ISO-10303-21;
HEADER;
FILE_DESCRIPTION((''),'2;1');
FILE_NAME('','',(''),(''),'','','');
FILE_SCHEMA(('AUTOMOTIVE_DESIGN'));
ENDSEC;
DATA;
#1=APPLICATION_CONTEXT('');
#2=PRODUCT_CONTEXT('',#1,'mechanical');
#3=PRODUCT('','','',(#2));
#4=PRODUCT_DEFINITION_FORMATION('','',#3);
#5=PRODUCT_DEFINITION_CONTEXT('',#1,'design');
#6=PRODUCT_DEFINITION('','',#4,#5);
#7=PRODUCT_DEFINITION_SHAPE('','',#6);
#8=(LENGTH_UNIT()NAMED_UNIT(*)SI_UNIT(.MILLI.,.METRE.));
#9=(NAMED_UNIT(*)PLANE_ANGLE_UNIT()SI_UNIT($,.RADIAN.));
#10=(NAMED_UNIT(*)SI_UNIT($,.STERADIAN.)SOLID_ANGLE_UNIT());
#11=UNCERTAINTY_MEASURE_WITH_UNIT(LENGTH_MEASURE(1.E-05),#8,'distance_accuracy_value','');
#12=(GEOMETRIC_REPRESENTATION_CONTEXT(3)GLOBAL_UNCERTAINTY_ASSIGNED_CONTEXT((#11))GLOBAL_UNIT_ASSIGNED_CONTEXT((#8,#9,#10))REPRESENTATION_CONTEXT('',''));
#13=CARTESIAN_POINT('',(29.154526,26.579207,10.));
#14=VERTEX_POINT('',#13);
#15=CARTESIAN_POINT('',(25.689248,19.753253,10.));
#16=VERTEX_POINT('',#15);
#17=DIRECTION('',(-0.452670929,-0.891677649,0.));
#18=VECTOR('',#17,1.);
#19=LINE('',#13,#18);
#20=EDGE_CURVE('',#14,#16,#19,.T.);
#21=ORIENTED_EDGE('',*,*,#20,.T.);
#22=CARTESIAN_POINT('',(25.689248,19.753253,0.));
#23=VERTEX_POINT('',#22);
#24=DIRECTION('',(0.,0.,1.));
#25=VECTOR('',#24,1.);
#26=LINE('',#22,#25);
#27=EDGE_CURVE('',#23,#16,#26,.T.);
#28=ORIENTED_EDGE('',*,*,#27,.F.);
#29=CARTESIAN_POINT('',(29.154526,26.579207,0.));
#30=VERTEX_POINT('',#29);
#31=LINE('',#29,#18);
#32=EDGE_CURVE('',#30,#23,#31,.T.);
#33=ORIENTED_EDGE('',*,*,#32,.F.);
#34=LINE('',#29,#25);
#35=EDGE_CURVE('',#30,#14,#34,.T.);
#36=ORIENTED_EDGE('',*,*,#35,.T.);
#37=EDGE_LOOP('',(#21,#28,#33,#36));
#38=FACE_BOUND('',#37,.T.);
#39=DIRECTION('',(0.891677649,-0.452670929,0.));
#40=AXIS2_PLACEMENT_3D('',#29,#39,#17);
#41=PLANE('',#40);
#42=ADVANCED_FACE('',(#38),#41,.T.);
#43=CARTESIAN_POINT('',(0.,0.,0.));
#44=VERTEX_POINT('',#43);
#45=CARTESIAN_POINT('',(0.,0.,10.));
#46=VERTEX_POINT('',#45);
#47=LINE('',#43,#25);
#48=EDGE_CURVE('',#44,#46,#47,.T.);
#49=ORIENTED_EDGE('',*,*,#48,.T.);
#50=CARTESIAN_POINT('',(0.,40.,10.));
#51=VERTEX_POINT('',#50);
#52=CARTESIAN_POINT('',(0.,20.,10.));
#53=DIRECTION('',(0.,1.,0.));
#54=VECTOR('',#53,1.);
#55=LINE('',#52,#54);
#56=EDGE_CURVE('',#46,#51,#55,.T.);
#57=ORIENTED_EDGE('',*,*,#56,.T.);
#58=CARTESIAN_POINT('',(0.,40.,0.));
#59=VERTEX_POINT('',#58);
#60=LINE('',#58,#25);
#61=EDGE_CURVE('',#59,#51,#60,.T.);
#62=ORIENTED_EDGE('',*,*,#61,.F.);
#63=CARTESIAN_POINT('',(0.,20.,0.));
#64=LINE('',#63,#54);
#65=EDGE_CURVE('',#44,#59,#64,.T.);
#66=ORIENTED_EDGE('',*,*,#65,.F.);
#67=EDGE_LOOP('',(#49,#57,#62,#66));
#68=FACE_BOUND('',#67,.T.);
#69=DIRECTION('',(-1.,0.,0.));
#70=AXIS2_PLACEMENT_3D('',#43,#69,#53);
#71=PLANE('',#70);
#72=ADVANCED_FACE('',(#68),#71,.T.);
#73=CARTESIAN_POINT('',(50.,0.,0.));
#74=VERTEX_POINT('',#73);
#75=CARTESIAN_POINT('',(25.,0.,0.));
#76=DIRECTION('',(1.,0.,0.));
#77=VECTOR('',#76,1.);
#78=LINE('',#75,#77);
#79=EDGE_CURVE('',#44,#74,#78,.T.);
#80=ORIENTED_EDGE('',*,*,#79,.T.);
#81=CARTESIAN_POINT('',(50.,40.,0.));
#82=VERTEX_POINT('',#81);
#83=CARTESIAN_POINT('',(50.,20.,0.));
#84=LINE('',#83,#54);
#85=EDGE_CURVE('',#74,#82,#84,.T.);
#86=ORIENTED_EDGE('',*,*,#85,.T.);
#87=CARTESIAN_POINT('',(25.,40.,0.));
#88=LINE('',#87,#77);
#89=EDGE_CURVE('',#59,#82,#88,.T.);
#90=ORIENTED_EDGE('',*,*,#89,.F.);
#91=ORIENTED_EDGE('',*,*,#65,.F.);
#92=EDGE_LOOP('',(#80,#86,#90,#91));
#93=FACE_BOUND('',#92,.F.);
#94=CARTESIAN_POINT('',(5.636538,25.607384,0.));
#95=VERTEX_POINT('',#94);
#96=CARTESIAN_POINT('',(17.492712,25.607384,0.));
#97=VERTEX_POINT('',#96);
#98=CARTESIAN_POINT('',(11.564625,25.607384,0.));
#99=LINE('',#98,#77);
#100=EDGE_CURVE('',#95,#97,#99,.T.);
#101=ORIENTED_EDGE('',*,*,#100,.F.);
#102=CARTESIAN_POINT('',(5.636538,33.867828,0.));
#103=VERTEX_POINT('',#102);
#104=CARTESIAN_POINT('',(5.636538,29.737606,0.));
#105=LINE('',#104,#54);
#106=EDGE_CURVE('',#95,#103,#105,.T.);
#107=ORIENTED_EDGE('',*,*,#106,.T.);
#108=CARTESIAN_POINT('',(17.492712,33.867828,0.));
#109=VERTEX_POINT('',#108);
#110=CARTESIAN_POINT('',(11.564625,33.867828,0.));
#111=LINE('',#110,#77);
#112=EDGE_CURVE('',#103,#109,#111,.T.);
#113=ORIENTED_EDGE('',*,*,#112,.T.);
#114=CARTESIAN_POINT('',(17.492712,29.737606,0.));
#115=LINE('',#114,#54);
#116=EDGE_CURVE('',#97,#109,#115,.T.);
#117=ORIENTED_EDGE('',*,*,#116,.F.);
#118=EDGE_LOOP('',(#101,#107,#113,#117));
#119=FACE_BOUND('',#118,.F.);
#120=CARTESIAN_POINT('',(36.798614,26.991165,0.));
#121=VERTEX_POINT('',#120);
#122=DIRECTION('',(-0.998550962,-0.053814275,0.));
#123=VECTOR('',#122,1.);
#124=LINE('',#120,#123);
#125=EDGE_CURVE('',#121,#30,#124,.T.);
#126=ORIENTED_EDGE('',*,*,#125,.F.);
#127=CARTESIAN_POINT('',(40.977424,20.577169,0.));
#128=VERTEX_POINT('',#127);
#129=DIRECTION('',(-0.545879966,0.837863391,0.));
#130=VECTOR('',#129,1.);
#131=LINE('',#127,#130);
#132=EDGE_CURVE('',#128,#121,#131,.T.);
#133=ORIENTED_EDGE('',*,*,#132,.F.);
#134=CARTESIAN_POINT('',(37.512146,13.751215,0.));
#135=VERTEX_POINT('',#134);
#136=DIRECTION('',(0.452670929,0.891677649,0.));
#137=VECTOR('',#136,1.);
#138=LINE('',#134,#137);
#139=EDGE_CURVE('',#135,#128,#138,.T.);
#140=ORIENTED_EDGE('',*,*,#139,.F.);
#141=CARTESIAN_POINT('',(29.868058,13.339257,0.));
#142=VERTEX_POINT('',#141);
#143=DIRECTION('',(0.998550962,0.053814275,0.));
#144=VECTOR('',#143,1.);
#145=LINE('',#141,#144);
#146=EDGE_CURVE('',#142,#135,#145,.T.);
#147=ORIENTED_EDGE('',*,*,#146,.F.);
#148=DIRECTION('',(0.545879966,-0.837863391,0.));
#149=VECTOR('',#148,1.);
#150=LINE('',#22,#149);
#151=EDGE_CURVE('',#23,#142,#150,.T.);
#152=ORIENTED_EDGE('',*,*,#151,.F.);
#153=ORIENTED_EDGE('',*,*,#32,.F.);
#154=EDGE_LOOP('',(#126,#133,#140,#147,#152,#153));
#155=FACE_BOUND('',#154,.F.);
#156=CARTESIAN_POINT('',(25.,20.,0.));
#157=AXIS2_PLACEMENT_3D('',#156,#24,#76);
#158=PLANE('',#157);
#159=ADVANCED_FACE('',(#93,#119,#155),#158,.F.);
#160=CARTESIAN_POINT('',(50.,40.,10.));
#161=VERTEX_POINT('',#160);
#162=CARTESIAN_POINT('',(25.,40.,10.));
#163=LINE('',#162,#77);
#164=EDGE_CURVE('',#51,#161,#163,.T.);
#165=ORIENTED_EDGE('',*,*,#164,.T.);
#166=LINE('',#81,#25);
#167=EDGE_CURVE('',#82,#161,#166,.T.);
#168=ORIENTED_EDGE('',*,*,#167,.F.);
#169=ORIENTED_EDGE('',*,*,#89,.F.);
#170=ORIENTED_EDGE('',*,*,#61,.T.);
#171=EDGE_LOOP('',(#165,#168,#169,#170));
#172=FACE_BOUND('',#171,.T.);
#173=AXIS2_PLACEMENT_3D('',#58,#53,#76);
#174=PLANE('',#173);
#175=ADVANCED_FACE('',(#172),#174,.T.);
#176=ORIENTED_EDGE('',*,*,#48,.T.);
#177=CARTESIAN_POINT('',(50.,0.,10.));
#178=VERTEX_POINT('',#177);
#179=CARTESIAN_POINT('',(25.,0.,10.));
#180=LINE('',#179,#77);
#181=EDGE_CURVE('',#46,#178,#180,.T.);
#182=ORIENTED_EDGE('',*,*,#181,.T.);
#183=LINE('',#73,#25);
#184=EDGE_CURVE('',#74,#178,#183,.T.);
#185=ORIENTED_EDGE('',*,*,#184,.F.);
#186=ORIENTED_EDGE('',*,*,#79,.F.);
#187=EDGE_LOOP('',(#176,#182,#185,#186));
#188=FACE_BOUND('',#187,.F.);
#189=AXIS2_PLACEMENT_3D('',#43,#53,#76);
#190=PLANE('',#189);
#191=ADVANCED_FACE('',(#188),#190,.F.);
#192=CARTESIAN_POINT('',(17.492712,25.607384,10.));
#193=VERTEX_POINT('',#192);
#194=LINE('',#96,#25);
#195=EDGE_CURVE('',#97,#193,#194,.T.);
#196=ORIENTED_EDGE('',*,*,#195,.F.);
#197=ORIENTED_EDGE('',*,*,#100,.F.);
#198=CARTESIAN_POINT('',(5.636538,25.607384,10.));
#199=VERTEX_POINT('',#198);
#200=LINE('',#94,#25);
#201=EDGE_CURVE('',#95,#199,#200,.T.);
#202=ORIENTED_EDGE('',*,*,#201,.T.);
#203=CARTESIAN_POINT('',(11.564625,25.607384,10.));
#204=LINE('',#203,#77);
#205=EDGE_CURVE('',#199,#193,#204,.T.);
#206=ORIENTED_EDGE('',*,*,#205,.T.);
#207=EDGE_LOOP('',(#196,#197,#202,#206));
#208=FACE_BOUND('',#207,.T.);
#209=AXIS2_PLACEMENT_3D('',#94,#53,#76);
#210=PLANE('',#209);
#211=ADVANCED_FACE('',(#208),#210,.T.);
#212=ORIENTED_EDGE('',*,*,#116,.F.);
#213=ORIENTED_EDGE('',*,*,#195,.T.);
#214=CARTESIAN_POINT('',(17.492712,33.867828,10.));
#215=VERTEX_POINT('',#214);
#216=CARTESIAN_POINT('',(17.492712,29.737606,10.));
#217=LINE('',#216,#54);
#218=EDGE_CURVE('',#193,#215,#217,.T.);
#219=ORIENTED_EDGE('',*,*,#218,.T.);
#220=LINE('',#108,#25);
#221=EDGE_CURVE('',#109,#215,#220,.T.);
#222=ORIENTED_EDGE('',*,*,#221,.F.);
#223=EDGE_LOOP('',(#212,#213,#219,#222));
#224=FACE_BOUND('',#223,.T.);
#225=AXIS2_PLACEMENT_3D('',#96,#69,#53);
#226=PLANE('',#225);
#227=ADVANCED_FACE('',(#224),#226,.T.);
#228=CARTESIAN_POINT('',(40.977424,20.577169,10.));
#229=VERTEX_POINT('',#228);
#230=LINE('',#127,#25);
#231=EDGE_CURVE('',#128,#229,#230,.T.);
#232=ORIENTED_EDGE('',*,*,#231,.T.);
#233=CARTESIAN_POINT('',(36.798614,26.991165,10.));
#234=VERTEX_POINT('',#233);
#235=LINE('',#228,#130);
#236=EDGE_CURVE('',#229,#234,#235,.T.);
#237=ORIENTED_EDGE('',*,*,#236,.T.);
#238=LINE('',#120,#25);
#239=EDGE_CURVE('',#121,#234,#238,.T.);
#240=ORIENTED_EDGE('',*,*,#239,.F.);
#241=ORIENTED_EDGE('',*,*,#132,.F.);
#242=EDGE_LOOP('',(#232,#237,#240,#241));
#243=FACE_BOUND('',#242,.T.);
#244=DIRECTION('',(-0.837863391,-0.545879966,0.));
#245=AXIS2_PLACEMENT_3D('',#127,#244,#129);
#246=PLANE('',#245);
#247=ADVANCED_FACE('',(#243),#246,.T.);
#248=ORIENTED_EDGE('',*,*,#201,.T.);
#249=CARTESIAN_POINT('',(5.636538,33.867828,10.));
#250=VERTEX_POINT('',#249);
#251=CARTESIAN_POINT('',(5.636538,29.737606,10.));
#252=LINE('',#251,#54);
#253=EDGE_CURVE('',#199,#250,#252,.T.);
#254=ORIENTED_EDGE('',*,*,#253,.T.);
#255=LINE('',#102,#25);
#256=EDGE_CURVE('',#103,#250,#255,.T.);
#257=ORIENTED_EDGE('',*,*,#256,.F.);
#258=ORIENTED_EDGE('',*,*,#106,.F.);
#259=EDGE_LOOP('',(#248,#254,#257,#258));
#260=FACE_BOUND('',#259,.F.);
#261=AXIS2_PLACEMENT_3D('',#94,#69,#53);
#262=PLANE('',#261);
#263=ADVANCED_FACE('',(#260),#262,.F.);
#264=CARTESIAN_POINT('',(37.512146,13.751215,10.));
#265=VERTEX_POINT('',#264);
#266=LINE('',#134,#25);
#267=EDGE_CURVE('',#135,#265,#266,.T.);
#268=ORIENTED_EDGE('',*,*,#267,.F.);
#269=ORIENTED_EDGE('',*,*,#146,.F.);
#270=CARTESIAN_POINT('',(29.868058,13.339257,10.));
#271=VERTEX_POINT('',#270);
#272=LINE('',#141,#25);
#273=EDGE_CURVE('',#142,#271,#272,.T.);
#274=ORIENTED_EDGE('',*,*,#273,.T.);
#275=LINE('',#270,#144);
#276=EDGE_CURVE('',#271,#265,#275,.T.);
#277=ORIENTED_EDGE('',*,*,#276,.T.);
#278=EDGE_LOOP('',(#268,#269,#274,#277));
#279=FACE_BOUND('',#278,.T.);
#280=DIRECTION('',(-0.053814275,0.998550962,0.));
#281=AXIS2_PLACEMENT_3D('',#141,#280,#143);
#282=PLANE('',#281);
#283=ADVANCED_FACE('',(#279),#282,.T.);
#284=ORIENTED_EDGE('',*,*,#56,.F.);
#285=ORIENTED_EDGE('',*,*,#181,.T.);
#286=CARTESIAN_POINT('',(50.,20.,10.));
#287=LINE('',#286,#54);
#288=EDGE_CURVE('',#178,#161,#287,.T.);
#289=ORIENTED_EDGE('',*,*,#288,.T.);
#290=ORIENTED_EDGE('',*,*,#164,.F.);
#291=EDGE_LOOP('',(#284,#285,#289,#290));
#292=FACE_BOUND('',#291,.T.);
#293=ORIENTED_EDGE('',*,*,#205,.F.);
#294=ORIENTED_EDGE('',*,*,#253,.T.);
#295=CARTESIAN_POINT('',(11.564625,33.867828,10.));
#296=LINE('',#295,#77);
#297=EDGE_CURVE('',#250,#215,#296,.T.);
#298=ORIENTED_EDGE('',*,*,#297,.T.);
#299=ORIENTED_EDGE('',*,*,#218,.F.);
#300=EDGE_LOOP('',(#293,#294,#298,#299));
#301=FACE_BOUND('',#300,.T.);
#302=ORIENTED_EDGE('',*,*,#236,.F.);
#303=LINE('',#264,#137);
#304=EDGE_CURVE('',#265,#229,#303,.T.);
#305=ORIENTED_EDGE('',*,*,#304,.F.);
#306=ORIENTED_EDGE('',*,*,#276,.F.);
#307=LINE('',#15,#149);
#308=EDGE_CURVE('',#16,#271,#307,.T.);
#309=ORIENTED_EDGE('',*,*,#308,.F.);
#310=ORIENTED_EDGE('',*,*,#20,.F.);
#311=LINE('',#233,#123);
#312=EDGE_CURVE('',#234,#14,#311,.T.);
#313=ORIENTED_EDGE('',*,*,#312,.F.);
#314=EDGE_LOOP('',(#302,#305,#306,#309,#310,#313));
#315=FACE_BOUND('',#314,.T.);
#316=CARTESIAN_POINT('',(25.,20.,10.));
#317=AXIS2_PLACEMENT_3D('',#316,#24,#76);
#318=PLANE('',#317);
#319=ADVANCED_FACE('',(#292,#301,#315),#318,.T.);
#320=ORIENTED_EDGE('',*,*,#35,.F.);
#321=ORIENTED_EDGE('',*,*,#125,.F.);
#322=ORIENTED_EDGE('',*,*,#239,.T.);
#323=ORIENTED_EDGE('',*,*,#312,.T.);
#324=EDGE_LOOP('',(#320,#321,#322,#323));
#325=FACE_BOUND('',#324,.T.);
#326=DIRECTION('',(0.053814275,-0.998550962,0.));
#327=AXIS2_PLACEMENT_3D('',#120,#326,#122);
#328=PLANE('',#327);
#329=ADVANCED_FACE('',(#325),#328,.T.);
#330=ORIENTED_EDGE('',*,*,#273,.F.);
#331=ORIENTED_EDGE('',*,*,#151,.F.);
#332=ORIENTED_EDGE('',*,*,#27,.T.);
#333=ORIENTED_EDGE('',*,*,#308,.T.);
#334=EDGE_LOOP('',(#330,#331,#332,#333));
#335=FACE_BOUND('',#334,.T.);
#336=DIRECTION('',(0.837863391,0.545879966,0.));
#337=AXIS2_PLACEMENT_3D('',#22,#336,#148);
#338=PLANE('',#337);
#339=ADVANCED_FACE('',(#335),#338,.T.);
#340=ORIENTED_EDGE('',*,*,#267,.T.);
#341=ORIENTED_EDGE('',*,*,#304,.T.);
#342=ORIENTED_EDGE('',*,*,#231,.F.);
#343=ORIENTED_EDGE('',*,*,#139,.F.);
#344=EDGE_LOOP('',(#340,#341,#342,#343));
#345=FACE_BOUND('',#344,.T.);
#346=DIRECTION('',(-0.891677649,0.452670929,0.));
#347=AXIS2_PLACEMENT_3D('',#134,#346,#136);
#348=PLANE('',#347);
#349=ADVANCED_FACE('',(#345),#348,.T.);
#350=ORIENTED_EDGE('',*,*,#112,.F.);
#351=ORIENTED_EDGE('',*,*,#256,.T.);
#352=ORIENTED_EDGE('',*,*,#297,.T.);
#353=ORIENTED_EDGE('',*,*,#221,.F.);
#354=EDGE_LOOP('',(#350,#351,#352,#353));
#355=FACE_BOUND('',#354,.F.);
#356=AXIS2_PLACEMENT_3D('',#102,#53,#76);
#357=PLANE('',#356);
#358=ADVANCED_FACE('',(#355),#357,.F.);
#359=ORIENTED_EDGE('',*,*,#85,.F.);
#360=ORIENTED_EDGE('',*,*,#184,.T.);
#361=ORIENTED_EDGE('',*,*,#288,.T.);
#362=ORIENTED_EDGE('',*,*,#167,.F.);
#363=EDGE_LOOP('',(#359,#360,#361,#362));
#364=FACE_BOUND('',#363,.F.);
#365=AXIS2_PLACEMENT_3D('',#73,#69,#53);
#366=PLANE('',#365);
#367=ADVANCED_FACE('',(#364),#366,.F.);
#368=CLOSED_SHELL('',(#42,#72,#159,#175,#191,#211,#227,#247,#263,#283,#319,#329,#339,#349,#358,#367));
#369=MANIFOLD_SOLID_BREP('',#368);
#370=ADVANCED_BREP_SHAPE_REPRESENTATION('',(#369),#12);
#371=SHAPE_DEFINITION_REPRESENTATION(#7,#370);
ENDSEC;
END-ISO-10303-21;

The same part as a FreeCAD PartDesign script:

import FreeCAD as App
import Part
import Sketcher

V = App.Vector
Q = App.Units.Quantity


def add_polygon(sketch, points):
    """Adds a closed chain of lines whose ends are joined by coincident constraints."""
    first, n = sketch.GeometryCount, len(points)
    for a, b in zip(points, points[1:] + points[:1]):
        sketch.addGeometry(Part.LineSegment(App.Vector(*a, 0), App.Vector(*b, 0)), False)
    for i in range(n):
        sketch.addConstraint(Sketcher.Constraint("Coincident", first + i, 2, first + (i + 1) % n, 1))

doc = App.newDocument("Part")
params = doc.addObject("Spreadsheet::Sheet", "Params")
for row, (alias, value) in enumerate([
    ("sketch1_width", "50 mm"),
    ("sketch1_height", "40 mm"),
    ("pad1_length", "10 mm"),
], start=1):
    params.set(f"A{row}", alias)
    params.set(f"B{row}", "=" + value)
    params.setAlias(f"B{row}", alias)

body = doc.addObject("PartDesign::Body", "Body")

# Sketch on XY plane
sketch1 = doc.addObject("Sketcher::SketchObject", "Sketch")
body.addObject(sketch1)
sketch1.AttachmentSupport = (doc.XY_Plane, [""])
sketch1.MapMode = "FlatFace"
add_polygon(sketch1, [(0, 40), (0, 0), (50, 0), (50, 40)])  # lines 0-3
add_polygon(sketch1, [(40.977424, 20.577169), (37.512146, 13.751215), (29.868058, 13.339257), (25.689248, 19.753253), (29.154526, 26.579207), (36.798614, 26.991165)])  # lines 4-9
add_polygon(sketch1, [(17.492712, 25.607384), (5.636538, 25.607384), (5.636538, 33.867828), (17.492712, 33.867828)])  # lines 10-13
sketch1.addConstraint([
    Sketcher.Constraint("Vertical", 0),
    Sketcher.Constraint("Horizontal", 1),
    Sketcher.Constraint("Vertical", 2),
    Sketcher.Constraint("Horizontal", 3),
    Sketcher.Constraint("Horizontal", 10),
    Sketcher.Constraint("Vertical", 11),
    Sketcher.Constraint("Horizontal", 12),
    Sketcher.Constraint("Vertical", 13),
    Sketcher.Constraint("Coincident", 0, 2, -1, 1),
    Sketcher.Constraint("Parallel", 4, 7),
    Sketcher.Constraint("Parallel", 5, 8),
    Sketcher.Constraint("Parallel", 6, 9),
    Sketcher.Constraint("Equal", 4, 5),
    Sketcher.Constraint("Equal", 5, 6),
    Sketcher.Constraint("Equal", 6, 7),
    Sketcher.Constraint("DistanceX", 1, 1, 1, 2, Q("50 mm")),
    Sketcher.Constraint("DistanceY", 0, 2, 0, 1, Q("40 mm")),
    Sketcher.Constraint("DistanceX", 6, 2, 4, 2, Q("11.822898 mm")),
    Sketcher.Constraint("Distance", 4, Q("7.655181 mm")),
    Sketcher.Constraint("DistanceX", 10, 2, 10, 1, Q("11.856175 mm")),
    Sketcher.Constraint("DistanceY", 11, 1, 11, 2, Q("8.260444 mm")),
    Sketcher.Constraint("DistanceX", -1, 1, 5, 2, Q("29.868058 mm")),
    Sketcher.Constraint("DistanceY", -1, 1, 9, 2, Q("20.577169 mm")),
    Sketcher.Constraint("DistanceY", -1, 1, 11, 2, Q("33.867828 mm")),
    Sketcher.Constraint("DistanceY", 5, 2, 4, 2, Q("0.411958 mm")),
    Sketcher.Constraint("DistanceX", 6, 2, 7, 2, Q("3.465278 mm")),
    Sketcher.Constraint("DistanceX", 10, 2, 6, 2, Q("20.05271 mm")),
])
sketch1.setExpression("Constraints[29]", "Params.sketch1_width")
sketch1.setExpression("Constraints[30]", "Params.sketch1_height")
pad1 = doc.addObject("PartDesign::Pad", "Pad")
body.addObject(pad1)
pad1.Profile = sketch1
pad1.setExpression("Length", "Params.pad1_length")

doc.recompute()
